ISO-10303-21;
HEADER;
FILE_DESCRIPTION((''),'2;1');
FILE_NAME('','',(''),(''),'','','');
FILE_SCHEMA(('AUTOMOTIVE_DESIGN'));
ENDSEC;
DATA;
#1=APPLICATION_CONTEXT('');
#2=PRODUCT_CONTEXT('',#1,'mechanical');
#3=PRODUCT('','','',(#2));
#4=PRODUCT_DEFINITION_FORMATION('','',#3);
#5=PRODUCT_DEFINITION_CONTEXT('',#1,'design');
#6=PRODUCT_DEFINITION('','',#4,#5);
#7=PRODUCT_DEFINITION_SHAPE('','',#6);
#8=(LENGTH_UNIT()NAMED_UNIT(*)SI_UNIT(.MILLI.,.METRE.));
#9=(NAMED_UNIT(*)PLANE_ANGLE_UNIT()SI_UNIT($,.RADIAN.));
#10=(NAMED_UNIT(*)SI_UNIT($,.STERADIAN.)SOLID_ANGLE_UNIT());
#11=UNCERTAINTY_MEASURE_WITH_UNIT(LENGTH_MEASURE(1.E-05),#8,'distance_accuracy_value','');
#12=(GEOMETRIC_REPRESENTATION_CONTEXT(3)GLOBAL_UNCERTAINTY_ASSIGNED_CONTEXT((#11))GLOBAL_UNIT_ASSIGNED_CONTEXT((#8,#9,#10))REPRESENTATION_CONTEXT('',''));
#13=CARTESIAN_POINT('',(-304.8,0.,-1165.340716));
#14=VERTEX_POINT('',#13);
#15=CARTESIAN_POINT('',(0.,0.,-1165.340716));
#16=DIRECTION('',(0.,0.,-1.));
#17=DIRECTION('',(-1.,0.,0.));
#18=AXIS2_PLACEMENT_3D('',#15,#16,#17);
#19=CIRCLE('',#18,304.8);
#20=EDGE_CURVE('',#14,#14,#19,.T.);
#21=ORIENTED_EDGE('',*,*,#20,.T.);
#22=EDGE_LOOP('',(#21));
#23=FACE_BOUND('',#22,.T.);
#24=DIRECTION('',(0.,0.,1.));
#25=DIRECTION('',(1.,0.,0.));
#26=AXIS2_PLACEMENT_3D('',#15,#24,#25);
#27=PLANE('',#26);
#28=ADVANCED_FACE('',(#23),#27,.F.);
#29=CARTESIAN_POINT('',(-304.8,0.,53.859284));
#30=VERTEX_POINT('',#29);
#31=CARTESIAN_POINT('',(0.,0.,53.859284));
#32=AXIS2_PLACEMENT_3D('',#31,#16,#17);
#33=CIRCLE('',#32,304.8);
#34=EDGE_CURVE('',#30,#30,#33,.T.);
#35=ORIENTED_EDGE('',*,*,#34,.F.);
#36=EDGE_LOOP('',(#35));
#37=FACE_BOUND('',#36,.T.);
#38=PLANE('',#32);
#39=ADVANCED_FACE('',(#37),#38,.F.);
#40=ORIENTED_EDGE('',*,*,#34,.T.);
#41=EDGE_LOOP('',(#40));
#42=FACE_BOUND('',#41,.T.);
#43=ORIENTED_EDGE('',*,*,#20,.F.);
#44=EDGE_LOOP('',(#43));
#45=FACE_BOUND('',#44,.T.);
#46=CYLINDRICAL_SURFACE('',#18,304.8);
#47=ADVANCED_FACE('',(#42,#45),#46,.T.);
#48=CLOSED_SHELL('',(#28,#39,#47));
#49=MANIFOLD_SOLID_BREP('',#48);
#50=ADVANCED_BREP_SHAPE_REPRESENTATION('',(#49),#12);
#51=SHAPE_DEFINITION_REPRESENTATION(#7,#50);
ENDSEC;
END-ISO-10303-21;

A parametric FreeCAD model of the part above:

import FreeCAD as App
import Part
import Sketcher
from FreeCAD import Vector
Q = App.Units.Quantity


def add_polygon(sketch, points):
    """Adds a closed chain of lines whose ends are joined by coincident constraints."""
    first, n = sketch.GeometryCount, len(points)
    for a, b in zip(points, points[1:] + points[:1]):
        sketch.addGeometry(Part.LineSegment(App.Vector(*a, 0), App.Vector(*b, 0)), False)
    for i in range(n):
        sketch.addConstraint(Sketcher.Constraint("Coincident", first + i, 2, first + (i + 1) % n, 1))

doc = App.newDocument("Part")
body = doc.addObject("PartDesign::Body", "Body")

sketch1 = body.newObject("Sketcher::SketchObject", "Sketch")
sketch1.AttachmentSupport = (doc.getObject("XZ_Plane"), [""])
sketch1.MapMode = "FlatFace"
add_polygon(sketch1, [(0, -1165), (0, 54), (305, 54), (305, -1165)])
sketch1.addConstraint([
    Sketcher.Constraint("Vertical", 0),
    Sketcher.Constraint("Horizontal", 1),
    Sketcher.Constraint("Vertical", 2),
    Sketcher.Constraint("Horizontal", 3),
    Sketcher.Constraint("PointOnObject", 0, 2, -2),
    Sketcher.Constraint("DistanceX", 1, 1, 1, 2, Q("12 in")),
    Sketcher.Constraint("DistanceY", 0, 1, 0, 2, Q("48 in")),
    Sketcher.Constraint("DistanceY", -1, 1, 0, 2, 53.859284),
])
revolution = body.newObject("PartDesign::Revolution", "Revolution")
revolution.Profile = sketch1
revolution.ReferenceAxis = (sketch1, ["V_Axis"])
revolution.Angle = 360

doc.recompute()
